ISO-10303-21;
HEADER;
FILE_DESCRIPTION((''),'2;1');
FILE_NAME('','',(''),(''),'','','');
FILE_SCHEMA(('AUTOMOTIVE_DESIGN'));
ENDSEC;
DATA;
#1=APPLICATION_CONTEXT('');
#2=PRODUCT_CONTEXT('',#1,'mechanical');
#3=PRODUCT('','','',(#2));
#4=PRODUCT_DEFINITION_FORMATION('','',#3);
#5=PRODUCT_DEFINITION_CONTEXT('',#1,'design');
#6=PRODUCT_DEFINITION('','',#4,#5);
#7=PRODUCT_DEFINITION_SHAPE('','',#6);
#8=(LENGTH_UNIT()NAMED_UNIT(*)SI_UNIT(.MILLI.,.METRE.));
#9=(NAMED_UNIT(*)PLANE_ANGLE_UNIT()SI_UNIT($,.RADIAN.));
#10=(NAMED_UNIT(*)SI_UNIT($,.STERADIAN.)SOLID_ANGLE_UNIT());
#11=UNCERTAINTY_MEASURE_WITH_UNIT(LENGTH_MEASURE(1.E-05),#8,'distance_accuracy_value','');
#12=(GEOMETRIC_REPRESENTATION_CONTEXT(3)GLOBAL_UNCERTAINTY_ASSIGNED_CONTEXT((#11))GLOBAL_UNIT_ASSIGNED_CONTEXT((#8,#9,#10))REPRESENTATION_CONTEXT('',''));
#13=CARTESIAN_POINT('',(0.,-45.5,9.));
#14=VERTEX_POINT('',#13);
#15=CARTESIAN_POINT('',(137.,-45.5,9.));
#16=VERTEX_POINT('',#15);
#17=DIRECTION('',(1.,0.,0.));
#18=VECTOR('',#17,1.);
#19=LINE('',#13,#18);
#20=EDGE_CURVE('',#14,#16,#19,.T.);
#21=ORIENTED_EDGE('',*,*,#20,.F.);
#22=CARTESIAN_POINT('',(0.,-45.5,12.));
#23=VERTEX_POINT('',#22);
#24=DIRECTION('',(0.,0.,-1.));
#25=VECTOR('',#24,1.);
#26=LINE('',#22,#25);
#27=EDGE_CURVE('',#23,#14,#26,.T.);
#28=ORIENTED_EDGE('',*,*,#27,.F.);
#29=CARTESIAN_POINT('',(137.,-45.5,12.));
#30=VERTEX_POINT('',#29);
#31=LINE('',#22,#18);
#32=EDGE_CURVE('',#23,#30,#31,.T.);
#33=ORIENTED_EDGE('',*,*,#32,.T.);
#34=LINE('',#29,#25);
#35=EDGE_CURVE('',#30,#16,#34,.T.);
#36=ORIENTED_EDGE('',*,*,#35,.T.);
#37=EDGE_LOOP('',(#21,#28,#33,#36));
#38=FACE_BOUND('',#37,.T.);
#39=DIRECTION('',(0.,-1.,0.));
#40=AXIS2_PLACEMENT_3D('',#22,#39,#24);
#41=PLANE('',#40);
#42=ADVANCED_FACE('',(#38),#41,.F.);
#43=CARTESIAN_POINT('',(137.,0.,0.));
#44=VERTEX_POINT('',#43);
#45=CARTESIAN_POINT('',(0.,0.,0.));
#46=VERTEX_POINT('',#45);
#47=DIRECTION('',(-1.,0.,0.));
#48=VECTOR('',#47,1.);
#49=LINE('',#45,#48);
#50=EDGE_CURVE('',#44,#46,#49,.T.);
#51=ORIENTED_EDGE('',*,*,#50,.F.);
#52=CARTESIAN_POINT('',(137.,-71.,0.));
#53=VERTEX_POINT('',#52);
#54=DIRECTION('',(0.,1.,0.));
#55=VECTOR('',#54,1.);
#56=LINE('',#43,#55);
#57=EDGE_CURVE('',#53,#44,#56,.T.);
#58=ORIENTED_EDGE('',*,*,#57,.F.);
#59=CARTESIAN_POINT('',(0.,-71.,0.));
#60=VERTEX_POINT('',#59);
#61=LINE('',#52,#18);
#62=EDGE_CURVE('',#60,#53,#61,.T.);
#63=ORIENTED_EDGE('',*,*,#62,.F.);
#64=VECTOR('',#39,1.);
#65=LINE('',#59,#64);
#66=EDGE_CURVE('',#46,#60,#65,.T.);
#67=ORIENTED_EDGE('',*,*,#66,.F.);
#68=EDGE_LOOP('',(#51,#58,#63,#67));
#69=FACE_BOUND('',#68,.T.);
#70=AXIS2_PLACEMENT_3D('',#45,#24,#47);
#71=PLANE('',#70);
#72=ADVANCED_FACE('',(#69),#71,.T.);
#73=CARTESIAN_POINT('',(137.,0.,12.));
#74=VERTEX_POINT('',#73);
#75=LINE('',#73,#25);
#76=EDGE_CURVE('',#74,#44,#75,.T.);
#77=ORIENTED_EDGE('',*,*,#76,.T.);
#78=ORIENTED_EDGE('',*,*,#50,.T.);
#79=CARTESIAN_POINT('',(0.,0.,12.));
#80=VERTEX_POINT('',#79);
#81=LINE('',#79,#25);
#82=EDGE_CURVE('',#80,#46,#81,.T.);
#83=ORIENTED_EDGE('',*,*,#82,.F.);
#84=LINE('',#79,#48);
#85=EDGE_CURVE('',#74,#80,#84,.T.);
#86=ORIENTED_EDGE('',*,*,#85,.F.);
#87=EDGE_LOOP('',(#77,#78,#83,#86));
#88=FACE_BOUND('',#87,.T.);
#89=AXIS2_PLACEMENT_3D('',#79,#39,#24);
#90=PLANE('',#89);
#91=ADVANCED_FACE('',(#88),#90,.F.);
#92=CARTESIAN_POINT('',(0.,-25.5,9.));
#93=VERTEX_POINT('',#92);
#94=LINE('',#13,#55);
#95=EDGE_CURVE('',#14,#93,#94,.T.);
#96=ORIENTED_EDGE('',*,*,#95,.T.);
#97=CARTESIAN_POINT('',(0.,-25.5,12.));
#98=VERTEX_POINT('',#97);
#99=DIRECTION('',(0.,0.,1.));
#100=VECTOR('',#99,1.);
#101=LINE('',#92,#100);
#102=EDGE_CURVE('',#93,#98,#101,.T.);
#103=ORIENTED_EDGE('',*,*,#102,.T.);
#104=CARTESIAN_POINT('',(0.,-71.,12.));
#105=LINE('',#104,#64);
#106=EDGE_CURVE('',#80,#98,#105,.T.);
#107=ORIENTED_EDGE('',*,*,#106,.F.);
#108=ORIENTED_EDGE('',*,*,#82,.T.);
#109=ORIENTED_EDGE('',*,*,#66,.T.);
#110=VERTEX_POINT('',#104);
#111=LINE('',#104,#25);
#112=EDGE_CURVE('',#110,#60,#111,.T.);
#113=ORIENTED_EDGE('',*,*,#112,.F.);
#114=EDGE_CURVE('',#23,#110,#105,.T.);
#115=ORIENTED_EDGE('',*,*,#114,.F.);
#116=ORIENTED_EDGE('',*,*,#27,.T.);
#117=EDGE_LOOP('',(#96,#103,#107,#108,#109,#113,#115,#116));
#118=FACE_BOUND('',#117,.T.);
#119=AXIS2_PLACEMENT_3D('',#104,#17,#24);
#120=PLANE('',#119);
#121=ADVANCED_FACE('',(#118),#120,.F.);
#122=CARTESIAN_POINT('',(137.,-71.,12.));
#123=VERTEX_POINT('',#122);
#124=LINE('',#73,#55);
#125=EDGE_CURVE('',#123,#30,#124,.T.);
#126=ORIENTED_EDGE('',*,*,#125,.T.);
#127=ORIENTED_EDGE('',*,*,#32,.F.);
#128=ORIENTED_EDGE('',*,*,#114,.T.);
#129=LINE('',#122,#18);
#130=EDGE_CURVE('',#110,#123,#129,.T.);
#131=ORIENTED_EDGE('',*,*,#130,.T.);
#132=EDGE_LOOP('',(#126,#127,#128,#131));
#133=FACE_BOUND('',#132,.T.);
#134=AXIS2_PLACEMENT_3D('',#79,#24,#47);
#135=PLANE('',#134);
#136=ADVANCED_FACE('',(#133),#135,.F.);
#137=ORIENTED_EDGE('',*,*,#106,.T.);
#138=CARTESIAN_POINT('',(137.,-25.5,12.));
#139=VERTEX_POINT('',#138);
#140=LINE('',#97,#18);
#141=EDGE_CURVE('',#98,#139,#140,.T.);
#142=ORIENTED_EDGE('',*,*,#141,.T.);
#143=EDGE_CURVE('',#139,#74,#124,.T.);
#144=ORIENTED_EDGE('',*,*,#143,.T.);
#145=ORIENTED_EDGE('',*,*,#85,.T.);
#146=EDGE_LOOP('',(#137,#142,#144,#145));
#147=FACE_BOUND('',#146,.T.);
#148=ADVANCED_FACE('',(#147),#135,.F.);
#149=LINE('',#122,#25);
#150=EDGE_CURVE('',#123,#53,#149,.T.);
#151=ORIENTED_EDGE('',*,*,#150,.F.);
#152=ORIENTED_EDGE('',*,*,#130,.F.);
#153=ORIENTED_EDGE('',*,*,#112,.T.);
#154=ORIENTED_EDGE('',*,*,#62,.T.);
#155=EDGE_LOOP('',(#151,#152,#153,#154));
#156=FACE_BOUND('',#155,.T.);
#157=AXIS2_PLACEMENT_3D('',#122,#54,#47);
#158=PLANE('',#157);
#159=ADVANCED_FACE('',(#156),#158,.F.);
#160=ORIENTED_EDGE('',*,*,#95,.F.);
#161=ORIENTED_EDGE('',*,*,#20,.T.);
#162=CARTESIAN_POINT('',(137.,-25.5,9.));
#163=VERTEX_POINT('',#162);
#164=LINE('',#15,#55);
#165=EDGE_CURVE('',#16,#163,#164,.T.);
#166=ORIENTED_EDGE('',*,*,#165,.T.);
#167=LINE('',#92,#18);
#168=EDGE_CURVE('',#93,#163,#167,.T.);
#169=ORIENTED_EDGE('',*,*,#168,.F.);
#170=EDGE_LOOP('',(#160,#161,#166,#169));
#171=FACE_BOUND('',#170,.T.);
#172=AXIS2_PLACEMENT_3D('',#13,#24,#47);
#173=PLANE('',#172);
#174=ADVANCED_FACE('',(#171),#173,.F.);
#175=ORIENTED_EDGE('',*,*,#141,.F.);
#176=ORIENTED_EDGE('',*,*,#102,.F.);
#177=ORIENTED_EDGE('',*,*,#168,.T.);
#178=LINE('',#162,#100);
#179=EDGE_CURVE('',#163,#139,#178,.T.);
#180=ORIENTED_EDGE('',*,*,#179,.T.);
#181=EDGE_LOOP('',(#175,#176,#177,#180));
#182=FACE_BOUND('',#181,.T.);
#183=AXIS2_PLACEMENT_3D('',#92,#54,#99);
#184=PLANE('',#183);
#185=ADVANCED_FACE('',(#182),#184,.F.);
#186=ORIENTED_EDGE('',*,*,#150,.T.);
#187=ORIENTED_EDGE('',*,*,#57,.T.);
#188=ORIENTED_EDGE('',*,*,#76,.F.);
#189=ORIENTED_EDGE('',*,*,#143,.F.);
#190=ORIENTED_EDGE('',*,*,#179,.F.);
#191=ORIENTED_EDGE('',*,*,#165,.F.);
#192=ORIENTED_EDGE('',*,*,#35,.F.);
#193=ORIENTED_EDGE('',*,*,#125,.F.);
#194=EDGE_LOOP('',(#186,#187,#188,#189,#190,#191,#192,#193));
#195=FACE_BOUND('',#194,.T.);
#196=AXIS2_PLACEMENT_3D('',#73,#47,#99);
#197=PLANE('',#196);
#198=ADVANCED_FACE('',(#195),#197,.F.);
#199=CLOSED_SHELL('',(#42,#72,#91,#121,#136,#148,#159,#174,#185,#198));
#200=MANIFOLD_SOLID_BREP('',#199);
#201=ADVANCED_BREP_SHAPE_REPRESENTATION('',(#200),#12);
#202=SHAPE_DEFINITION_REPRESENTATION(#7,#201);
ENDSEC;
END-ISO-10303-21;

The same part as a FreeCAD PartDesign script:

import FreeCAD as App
import Part
import Sketcher

V = App.Vector


def add_polygon(sketch, points):
    """Adds a closed chain of lines whose ends are joined by coincident constraints."""
    first, n = sketch.GeometryCount, len(points)
    for a, b in zip(points, points[1:] + points[:1]):
        sketch.addGeometry(Part.LineSegment(App.Vector(*a, 0), App.Vector(*b, 0)), False)
    for i in range(n):
        sketch.addConstraint(Sketcher.Constraint("Coincident", first + i, 2, first + (i + 1) % n, 1))

doc = App.newDocument("Part")
body = doc.addObject("PartDesign::Body", "Body")

# Sketch on XY plane
sketch1 = body.newObject("Sketcher::SketchObject", "Sketch")
sketch1.AttachmentSupport = (doc.getObject("XY_Plane"), [""])
sketch1.MapMode = "FlatFace"
add_polygon(sketch1, [(0, 0), (0, -71), (137, -71), (137, 0)])  # lines 0-3
sketch1.addConstraint([
    Sketcher.Constraint("Vertical", 0),
    Sketcher.Constraint("Horizontal", 1),
    Sketcher.Constraint("Vertical", 2),
    Sketcher.Constraint("Horizontal", 3),
    Sketcher.Constraint("Coincident", 3, 2, -1, 1),
    Sketcher.Constraint("DistanceX", 1, 1, 1, 2, 137.0),
    Sketcher.Constraint("DistanceY", 0, 2, 0, 1, 71.0),
])
pad1 = body.newObject("PartDesign::Pad", "Pad")
pad1.Profile = sketch1
pad1.Length = 12

# Sketch on YZ plane
sketch2 = body.newObject("Sketcher::SketchObject", "Sketch001")
sketch2.AttachmentSupport = (doc.getObject("YZ_Plane"), [""])
sketch2.MapMode = "FlatFace"
sketch2.AttachmentOffset = App.Placement(V(0, 0, 137), App.Rotation())
add_polygon(sketch2, [(-25.5, 12), (-45.5, 12), (-45.5, 9), (-25.5, 9)])  # lines 0-3
sketch2.addConstraint([
    Sketcher.Constraint("Horizontal", 0),
    Sketcher.Constraint("Vertical", 1),
    Sketcher.Constraint("Horizontal", 2),
    Sketcher.Constraint("Vertical", 3),
    Sketcher.Constraint("DistanceX", 0, 2, 0, 1, 20.0),
    Sketcher.Constraint("DistanceY", 1, 2, 1, 1, 3.0),
    Sketcher.Constraint("DistanceY", -1, 1, 0, 2, 12.0),
    Sketcher.Constraint("DistanceX", 0, 2, -1, 1, 45.5),
])
pocket1 = body.newObject("PartDesign::Pocket", "Pocket")
pocket1.Profile = sketch2
pocket1.Type = "ThroughAll"

doc.recompute()
